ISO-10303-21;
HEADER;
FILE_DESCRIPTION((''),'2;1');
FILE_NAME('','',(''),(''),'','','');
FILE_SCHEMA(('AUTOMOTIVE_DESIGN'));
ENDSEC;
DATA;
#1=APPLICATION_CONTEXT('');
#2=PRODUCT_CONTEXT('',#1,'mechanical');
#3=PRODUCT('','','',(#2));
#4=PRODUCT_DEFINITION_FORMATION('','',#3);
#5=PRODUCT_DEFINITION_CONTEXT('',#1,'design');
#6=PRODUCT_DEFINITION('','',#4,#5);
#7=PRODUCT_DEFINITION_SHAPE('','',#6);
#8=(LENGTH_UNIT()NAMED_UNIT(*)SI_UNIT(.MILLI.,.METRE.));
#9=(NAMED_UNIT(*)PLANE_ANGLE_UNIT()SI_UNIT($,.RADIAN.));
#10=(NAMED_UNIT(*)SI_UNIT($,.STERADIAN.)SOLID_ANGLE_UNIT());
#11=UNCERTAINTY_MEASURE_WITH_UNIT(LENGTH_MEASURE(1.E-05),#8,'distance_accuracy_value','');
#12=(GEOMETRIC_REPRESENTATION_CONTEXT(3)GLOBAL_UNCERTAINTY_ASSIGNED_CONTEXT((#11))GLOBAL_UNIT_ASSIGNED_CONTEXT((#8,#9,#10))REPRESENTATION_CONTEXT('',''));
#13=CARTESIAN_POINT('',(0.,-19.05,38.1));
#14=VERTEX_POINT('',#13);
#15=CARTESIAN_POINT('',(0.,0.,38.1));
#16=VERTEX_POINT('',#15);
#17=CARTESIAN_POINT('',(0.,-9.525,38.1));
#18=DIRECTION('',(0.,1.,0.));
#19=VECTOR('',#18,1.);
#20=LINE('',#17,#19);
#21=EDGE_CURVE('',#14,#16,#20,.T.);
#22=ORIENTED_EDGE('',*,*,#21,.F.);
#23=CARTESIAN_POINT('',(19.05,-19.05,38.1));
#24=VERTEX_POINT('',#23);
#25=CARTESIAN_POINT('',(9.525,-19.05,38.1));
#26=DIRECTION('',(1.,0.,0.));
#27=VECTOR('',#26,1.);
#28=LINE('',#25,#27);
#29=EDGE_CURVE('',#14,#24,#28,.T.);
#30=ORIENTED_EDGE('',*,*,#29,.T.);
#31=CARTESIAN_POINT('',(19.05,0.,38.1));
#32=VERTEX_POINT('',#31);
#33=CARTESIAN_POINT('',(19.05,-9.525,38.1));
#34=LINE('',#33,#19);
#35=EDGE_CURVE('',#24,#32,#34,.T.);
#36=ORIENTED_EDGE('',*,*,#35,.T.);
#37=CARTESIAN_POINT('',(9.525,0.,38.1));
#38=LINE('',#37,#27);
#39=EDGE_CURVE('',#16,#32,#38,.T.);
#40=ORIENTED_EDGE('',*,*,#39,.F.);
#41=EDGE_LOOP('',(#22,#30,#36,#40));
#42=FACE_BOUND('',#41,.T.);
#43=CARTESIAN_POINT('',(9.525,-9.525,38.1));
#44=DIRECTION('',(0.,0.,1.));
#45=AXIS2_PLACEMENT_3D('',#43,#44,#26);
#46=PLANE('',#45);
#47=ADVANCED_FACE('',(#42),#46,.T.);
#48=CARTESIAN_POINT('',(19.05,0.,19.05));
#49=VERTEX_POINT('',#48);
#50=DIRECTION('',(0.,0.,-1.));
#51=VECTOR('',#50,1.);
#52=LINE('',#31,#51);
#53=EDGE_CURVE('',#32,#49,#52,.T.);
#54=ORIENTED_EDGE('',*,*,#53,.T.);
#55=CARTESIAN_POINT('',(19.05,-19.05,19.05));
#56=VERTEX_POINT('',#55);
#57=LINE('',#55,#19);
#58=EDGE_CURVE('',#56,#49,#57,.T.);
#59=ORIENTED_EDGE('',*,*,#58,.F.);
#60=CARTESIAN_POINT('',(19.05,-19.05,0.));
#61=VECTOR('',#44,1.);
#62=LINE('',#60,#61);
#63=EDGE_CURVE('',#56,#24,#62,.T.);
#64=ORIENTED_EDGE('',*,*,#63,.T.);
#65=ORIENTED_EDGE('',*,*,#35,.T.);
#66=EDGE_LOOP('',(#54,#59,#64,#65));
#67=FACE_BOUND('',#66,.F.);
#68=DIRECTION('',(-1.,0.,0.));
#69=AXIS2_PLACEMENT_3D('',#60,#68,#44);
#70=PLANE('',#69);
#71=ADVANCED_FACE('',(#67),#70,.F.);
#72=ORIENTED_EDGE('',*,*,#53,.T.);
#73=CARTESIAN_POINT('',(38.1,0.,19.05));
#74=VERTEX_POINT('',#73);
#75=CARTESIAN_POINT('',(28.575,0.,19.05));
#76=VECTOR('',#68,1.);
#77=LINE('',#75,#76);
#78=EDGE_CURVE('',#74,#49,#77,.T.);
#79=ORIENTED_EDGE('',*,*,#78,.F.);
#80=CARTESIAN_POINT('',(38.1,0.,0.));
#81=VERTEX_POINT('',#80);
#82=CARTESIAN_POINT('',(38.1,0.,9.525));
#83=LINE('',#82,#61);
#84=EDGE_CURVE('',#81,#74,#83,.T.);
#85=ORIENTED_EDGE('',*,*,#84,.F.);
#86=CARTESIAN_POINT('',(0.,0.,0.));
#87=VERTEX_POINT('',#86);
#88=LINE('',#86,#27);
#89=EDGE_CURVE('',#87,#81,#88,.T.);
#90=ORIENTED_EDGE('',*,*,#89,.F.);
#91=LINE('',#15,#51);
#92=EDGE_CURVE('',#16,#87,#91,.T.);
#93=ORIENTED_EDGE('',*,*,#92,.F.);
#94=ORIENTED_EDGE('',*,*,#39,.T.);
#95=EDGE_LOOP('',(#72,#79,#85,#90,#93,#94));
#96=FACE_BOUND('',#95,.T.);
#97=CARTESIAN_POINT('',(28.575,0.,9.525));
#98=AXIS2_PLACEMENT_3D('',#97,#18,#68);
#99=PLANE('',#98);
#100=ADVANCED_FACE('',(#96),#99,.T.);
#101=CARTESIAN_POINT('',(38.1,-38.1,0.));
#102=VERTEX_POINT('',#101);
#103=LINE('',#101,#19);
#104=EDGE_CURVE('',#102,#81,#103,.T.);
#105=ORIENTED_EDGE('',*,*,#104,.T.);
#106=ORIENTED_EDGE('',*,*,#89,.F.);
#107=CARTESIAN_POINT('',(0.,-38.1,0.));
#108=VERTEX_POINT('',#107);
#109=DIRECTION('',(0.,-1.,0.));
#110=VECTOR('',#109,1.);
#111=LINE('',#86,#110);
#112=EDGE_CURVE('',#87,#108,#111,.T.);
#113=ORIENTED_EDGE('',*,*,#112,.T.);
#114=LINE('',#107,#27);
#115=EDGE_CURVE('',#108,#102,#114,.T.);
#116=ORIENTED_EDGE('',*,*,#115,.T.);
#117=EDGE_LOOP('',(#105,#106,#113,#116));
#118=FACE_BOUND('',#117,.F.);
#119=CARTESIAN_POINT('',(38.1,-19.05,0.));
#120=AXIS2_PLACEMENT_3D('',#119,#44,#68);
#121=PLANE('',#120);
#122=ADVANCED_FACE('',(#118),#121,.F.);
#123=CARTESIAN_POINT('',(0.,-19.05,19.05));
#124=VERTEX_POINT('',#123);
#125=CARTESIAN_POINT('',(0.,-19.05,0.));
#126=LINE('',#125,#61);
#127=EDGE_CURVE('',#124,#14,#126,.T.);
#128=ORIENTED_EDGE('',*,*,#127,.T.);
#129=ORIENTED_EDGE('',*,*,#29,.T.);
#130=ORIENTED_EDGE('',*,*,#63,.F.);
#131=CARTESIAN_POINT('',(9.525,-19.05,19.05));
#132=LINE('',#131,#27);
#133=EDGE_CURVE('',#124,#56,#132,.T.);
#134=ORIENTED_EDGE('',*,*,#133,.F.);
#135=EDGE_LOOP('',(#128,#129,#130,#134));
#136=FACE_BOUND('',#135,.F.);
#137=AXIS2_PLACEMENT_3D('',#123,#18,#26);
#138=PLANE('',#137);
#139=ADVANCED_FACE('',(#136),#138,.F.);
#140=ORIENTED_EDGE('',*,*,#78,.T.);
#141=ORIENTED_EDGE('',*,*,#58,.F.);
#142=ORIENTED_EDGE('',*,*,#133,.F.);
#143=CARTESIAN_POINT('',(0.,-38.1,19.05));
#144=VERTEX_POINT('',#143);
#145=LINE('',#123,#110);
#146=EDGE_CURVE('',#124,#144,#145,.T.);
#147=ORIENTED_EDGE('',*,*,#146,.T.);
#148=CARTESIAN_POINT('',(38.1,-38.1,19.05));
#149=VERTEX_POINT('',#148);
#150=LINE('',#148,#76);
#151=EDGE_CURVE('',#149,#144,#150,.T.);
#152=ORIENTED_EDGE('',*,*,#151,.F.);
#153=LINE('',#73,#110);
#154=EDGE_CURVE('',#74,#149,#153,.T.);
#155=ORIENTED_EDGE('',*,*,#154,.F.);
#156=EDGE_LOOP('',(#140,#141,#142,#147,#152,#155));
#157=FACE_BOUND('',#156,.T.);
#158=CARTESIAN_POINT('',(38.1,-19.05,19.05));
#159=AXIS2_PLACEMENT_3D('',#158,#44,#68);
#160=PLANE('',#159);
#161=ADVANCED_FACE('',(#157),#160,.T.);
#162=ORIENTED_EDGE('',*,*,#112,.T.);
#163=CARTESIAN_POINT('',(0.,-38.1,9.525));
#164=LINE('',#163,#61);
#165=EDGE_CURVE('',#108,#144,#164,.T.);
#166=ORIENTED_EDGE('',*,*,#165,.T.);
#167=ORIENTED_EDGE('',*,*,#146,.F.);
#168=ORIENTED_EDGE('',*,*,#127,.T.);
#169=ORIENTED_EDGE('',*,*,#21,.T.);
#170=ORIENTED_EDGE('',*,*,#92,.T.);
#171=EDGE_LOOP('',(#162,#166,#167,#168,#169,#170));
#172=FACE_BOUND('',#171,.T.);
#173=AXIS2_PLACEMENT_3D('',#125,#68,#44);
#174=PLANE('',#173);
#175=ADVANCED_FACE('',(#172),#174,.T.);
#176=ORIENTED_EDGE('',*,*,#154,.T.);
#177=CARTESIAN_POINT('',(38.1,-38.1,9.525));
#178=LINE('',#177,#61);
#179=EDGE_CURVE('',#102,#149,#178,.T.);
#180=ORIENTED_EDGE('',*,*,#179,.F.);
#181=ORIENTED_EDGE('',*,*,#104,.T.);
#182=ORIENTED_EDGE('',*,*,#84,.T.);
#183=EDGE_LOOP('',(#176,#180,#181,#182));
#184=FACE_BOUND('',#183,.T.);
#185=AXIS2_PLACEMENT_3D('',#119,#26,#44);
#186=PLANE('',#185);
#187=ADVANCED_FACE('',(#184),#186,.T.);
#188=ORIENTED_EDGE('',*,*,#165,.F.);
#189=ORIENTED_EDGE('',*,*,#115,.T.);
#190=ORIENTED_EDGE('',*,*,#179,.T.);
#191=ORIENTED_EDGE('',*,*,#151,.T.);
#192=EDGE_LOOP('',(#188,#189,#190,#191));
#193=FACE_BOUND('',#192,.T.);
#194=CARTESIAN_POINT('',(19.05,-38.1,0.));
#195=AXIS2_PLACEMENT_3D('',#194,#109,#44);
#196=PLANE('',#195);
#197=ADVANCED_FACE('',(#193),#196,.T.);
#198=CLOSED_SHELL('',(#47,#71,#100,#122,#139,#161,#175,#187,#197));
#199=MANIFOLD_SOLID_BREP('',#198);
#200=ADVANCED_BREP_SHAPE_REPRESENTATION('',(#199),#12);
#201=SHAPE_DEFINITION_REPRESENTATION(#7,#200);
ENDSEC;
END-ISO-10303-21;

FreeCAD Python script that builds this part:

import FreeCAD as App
import Part
import Sketcher
from FreeCAD import Vector
Q = App.Units.Quantity

doc = App.newDocument("Part")
body = doc.addObject("PartDesign::Body", "Body")

sketch1 = body.newObject("Sketcher::SketchObject", "Sketch")
sketch1.AttachmentSupport = (doc.getObject("XY_Plane"), [""])
sketch1.MapMode = "FlatFace"
sketch1.addGeometry([
    Part.LineSegment(Vector(0, 0, 0), Vector(0, -19, 0)),
    Part.LineSegment(Vector(0, -19, 0), Vector(19, -19, 0)),
    Part.LineSegment(Vector(19, -19, 0), Vector(19, 0, 0)),
    Part.LineSegment(Vector(19, 0, 0), Vector(0, 0, 0)),
], False)
sketch1.addConstraint([
    Sketcher.Constraint("Coincident", 0, 2, 1, 1),
    Sketcher.Constraint("Coincident", 1, 2, 2, 1),
    Sketcher.Constraint("Coincident", 2, 2, 3, 1),
    Sketcher.Constraint("Coincident", 3, 2, 0, 1),
    Sketcher.Constraint("Vertical", 0),
    Sketcher.Constraint("Horizontal", 1),
    Sketcher.Constraint("Vertical", 2),
    Sketcher.Constraint("Horizontal", 3),
    Sketcher.Constraint("Coincident", 3, 2, -1, 1),
    Sketcher.Constraint("Equal", 3, 0),
    Sketcher.Constraint("DistanceX", 1, 1, 1, 2, Q("0.75 in")),
])
pad1 = body.newObject("PartDesign::Pad", "Pad")
pad1.Profile = sketch1
pad1.Length = Q("0.75 in")

sketch2 = body.newObject("Sketcher::SketchObject", "Sketch001")
sketch2.AttachmentSupport = (doc.getObject("XY_Plane"), [""])
sketch2.MapMode = "FlatFace"
sketch2.AttachmentOffset = App.Placement(Vector(0, 0, 0.75 * 25.4), App.Rotation())
sketch2.addGeometry([
    Part.LineSegment(Vector(0, 0, 0), Vector(0, -19, 0)),
    Part.LineSegment(Vector(0, -19, 0), Vector(19, -19, 0)),
    Part.LineSegment(Vector(19, -19, 0), Vector(19, 0, 0)),
    Part.LineSegment(Vector(19, 0, 0), Vector(0, 0, 0)),
], False)
sketch2.addConstraint([
    Sketcher.Constraint("Coincident", 0, 2, 1, 1),
    Sketcher.Constraint("Coincident", 1, 2, 2, 1),
    Sketcher.Constraint("Coincident", 2, 2, 3, 1),
    Sketcher.Constraint("Coincident", 3, 2, 0, 1),
    Sketcher.Constraint("Vertical", 0),
    Sketcher.Constraint("Horizontal", 1),
    Sketcher.Constraint("Vertical", 2),
    Sketcher.Constraint("Horizontal", 3),
    Sketcher.Constraint("Coincident", 3, 2, -1, 1),
    Sketcher.Constraint("Equal", 3, 0),
    Sketcher.Constraint("DistanceX", 1, 1, 1, 2, Q("0.75 in")),
])
pad2 = body.newObject("PartDesign::Pad", "Pad001")
pad2.Profile = sketch2
pad2.Length = Q("0.75 in")

sketch3 = body.newObject("Sketcher::SketchObject", "Sketch002")
sketch3.AttachmentSupport = (doc.getObject("XZ_Plane"), [""])
sketch3.MapMode = "FlatFace"
sketch3.AttachmentOffset = App.Placement(Vector(0, 0, 0.75 * 25.4), App.Rotation())
sketch3.addGeometry([
    Part.LineSegment(Vector(0, 19, 0), Vector(0, 0, 0)),
    Part.LineSegment(Vector(0, 0, 0), Vector(19, 0, 0)),
    Part.LineSegment(Vector(19, 0, 0), Vector(19, 19, 0)),
    Part.LineSegment(Vector(19, 19, 0), Vector(0, 19, 0)),
], False)
sketch3.addConstraint([
    Sketcher.Constraint("Coincident", 0, 2, 1, 1),
    Sketcher.Constraint("Coincident", 1, 2, 2, 1),
    Sketcher.Constraint("Coincident", 2, 2, 3, 1),
    Sketcher.Constraint("Coincident", 3, 2, 0, 1),
    Sketcher.Constraint("Vertical", 0),
    Sketcher.Constraint("Horizontal", 1),
    Sketcher.Constraint("Vertical", 2),
    Sketcher.Constraint("Horizontal", 3),
    Sketcher.Constraint("Coincident", 0, 2, -1, 1),
    Sketcher.Constraint("Equal", 3, 0),
    Sketcher.Constraint("DistanceX", 1, 1, 1, 2, Q("0.75 in")),
])
pad3 = body.newObject("PartDesign::Pad", "Pad002")
pad3.Profile = sketch3
pad3.Length = Q("0.75 in")

sketch4 = body.newObject("Sketcher::SketchObject", "Sketch003")
sketch4.AttachmentSupport = (doc.getObject("YZ_Plane"), [""])
sketch4.MapMode = "FlatFace"
sketch4.AttachmentOffset = App.Placement(Vector(0, 0, 0.75 * 25.4), App.Rotation())
sketch4.addGeometry([
    Part.LineSegment(Vector(-38, 19, 0), Vector(-38, 0, 0)),
    Part.LineSegment(Vector(-38, 0, 0), Vector(-19, 0, 0)),
    Part.LineSegment(Vector(-19, 0, 0), Vector(-19, 19, 0)),
    Part.LineSegment(Vector(-19, 19, 0), Vector(-38, 19, 0)),
], False)
sketch4.addConstraint([
    Sketcher.Constraint("Coincident", 0, 2, 1, 1),
    Sketcher.Constraint("Coincident", 1, 2, 2, 1),
    Sketcher.Constraint("Coincident", 2, 2, 3, 1),
    Sketcher.Constraint("Coincident", 3, 2, 0, 1),
    Sketcher.Constraint("Vertical", 0),
    Sketcher.Constraint("Horizontal", 1),
    Sketcher.Constraint("Vertical", 2),
    Sketcher.Constraint("Horizontal", 3),
    Sketcher.Constraint("PointOnObject", 0, 2, -1),
    Sketcher.Constraint("Equal", 3, 0),
    Sketcher.Constraint("DistanceX", 1, 1, 1, 2, Q("0.75 in")),
    Sketcher.Constraint("DistanceX", 0, 2, -1, 1, Q("1.5 in")),
])
pad4 = body.newObject("PartDesign::Pad", "Pad003")
pad4.Profile = sketch4
pad4.Length = Q("0.75 in")

sketch5 = body.newObject("Sketcher::SketchObject", "Sketch004")
sketch5.AttachmentSupport = (doc.getObject("XZ_Plane"), [""])
sketch5.MapMode = "FlatFace"
sketch5.AttachmentOffset = App.Placement(Vector(0, 0, 0.75 * 25.4), App.Rotation())
sketch5.addGeometry([
    Part.LineSegment(Vector(38, 19, 0), Vector(38, 0, 0)),
    Part.LineSegment(Vector(38, 0, 0), Vector(19, 0, 0)),
    Part.LineSegment(Vector(19, 0, 0), Vector(19, 19, 0)),
    Part.LineSegment(Vector(19, 19, 0), Vector(38, 19, 0)),
], False)
sketch5.addConstraint([
    Sketcher.Constraint("Coincident", 0, 2, 1, 1),
    Sketcher.Constraint("Coincident", 1, 2, 2, 1),
    Sketcher.Constraint("Coincident", 2, 2, 3, 1),
    Sketcher.Constraint("Coincident", 3, 2, 0, 1),
    Sketcher.Constraint("Vertical", 0),
    Sketcher.Constraint("Horizontal", 1),
    Sketcher.Constraint("Vertical", 2),
    Sketcher.Constraint("Horizontal", 3),
    Sketcher.Constraint("PointOnObject", 0, 2, -1),
    Sketcher.Constraint("Equal", 3, 0),
    Sketcher.Constraint("DistanceX", 1, 2, 1, 1, Q("0.75 in")),
    Sketcher.Constraint("DistanceX", -1, 1, 0, 2, Q("1.5 in")),
])
pad5 = body.newObject("PartDesign::Pad", "Pad004")
pad5.Profile = sketch5
pad5.Length = Q("0.75 in")
pad5.Reversed = True

doc.recompute()
